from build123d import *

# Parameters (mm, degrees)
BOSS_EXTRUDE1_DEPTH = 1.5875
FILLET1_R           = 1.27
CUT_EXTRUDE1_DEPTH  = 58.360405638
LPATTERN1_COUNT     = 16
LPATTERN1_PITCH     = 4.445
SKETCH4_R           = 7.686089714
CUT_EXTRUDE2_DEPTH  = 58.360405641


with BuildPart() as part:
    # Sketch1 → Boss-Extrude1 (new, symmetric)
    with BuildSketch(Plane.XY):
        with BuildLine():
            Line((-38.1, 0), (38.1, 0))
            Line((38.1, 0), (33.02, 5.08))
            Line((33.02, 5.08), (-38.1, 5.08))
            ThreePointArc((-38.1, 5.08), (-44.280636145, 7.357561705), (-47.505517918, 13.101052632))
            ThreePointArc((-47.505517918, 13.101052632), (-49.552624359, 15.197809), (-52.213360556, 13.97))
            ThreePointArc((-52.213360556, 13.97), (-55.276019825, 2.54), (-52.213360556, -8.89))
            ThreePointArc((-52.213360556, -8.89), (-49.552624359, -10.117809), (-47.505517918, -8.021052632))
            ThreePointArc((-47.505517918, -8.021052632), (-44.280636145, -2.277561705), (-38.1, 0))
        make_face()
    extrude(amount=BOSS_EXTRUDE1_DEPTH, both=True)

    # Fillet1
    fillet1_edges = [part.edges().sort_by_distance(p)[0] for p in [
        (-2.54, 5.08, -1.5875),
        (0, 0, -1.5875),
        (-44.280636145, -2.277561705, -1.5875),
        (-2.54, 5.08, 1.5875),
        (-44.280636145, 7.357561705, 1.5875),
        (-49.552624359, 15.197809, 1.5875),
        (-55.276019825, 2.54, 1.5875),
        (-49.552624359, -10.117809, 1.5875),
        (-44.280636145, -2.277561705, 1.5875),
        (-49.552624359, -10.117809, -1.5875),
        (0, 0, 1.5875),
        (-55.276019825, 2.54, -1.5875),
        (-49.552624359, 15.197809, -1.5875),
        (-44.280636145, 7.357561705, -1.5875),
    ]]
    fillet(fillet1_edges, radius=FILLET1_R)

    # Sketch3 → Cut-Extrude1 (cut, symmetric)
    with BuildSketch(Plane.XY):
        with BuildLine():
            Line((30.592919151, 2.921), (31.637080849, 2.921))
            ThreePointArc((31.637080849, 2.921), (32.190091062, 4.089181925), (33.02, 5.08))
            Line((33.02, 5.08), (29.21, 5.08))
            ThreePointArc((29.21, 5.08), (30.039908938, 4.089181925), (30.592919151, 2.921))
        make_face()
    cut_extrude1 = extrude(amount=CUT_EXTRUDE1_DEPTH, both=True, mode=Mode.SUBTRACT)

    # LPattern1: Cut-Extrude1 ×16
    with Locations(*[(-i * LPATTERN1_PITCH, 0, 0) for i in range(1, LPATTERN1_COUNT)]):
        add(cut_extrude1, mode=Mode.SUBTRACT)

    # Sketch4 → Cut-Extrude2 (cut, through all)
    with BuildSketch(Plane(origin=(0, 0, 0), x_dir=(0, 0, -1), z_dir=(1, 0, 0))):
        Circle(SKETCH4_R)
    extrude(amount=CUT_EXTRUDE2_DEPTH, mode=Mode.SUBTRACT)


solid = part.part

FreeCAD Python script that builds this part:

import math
import FreeCAD as App
import Part
import Sketcher
Q = App.Units.Quantity


def edges_at(feature, points):
    """Names of the edges that pass closest to the given points."""
    edges = feature.Shape.Edges
    near = lambda p: min(range(len(edges)), key=lambda i: edges[i].distToShape(Part.Vertex(*p))[0])
    return sorted({f"Edge{near(p) + 1}" for p in points})

doc = App.newDocument("Part")
body = doc.addObject("PartDesign::Body", "Body")

# Sketch on XY plane
sketch1 = body.newObject("Sketcher::SketchObject", "Sketch")
sketch1.AttachmentSupport = (doc.getObject("XY_Plane"), [""])
sketch1.MapMode = "FlatFace"
sketch1.addGeometry(Part.LineSegment(App.Vector(-38.1, 0, 0), App.Vector(38.1, 0, 0)), False)
sketch1.addGeometry(Part.LineSegment(App.Vector(38.1, 0, 0), App.Vector(33, 5.1, 0)), False)
sketch1.addGeometry(Part.LineSegment(App.Vector(33, 5.1, 0), App.Vector(-38.1, 5.1, 0)), False)
sketch1.addGeometry(Part.ArcOfCircle(Part.Circle(App.Vector(-38.1, 14.6, 0), App.Vector(0, 0, 1), 9.5), math.radians(-171), math.radians(-90)), False)
sketch1.addGeometry(Part.ArcOfCircle(Part.Circle(App.Vector(-50, 12.7, 0), App.Vector(0, 0, 1), 2.5), math.radians(9), math.radians(150)), False)
sketch1.addGeometry(Part.ArcOfCircle(Part.Circle(App.Vector(-32.4, 2.5, 0), App.Vector(0, 0, 1), 22.9), math.radians(150), math.radians(210)), False)
sketch1.addGeometry(Part.ArcOfCircle(Part.Circle(App.Vector(-50, -7.6, 0), App.Vector(0, 0, 1), 2.5), math.radians(-150), math.radians(-9)), False)
sketch1.addGeometry(Part.ArcOfCircle(Part.Circle(App.Vector(-38.1, -9.5, 0), App.Vector(0, 0, 1), 9.5), math.radians(90), math.radians(171)), False)
sketch1.addConstraint(Sketcher.Constraint("Coincident", 0, 2, 1, 1))
sketch1.addConstraint(Sketcher.Constraint("Coincident", 1, 2, 2, 1))
sketch1.addConstraint(Sketcher.Constraint("Tangent", 2, 2, 3, 2))
sketch1.addConstraint(Sketcher.Constraint("Tangent", 3, 1, 4, 1))
sketch1.addConstraint(Sketcher.Constraint("Tangent", 4, 2, 5, 1))
sketch1.addConstraint(Sketcher.Constraint("Tangent", 5, 2, 6, 1))
sketch1.addConstraint(Sketcher.Constraint("Tangent", 6, 2, 7, 2))
sketch1.addConstraint(Sketcher.Constraint("Tangent", 7, 1, 0, 1))
sketch1.addConstraint(Sketcher.Constraint("Horizontal", 0))
sketch1.addConstraint(Sketcher.Constraint("Horizontal", 2))
sketch1.addConstraint(Sketcher.Constraint("Equal", 4, 6))
sketch1.addConstraint(Sketcher.Constraint("Equal", 3, 7))
sketch1.addConstraint(Sketcher.Constraint("Symmetric", 0, 2, 7, 1, -1, 1))
sketch1.addConstraint(Sketcher.Constraint("Vertical", 4, 3, 6, 3))
sketch1.addConstraint(Sketcher.Constraint("Vertical", 3, 3, 7, 3))
sketch1.addConstraint(Sketcher.Constraint("Radius", 4, Q("0.1 in")))
sketch1.addConstraint(Sketcher.Constraint("Radius", 5, Q("0.9 in")))
sketch1.addConstraint(Sketcher.Constraint("DistanceX", 0, 1, 0, 2, Q("3 in")))
sketch1.addConstraint(Sketcher.Constraint("DistanceX", 2, 2, 2, 1, Q("2.8 in")))
sketch1.addConstraint(Sketcher.Constraint("Angle", 1, Q("135 deg")))
sketch1.addConstraint(Sketcher.Constraint("Radius", 3, Q("0.375 in")))
sketch1.addConstraint(Sketcher.Constraint("DistanceY", -1, 1, 4, 3, Q("0.5 in")))
pad1 = body.newObject("PartDesign::Pad", "Pad")
pad1.Profile = sketch1
pad1.Length = Q("0.125 in")
pad1.Midplane = True
doc.recompute()

fillet = body.newObject("PartDesign::Fillet", "Fillet")
fillet.Base = (pad1, edges_at(pad1, [
    (-2.54, 5.08, -1.587),
    (0, 0, -1.587),
    (-44.281, -2.278, -1.587),
    (-2.54, 5.08, 1.587),
    (-44.281, 7.358, 1.587),
    (-49.553, 15.198, 1.587),
    (-55.276, 2.54, 1.587),
    (-49.553, -10.118, 1.587),
    (-44.281, -2.278, 1.587),
    (-49.553, -10.118, -1.587),
    (0, 0, 1.587),
    (-55.276, 2.54, -1.587),
    (-49.553, 15.198, -1.587),
    (-44.281, 7.358, -1.587),
]))
fillet.Radius = Q("0.05 in")

# Sketch on XY plane
sketch2 = body.newObject("Sketcher::SketchObject", "Sketch001")
sketch2.AttachmentSupport = (doc.getObject("XY_Plane"), [""])
sketch2.MapMode = "FlatFace"
sketch2.addGeometry(Part.LineSegment(App.Vector(30.6, 2.9, 0), App.Vector(31.6, 2.9, 0)), False)
sketch2.addGeometry(Part.ArcOfCircle(Part.Circle(App.Vector(36.5, 1.3, 0), App.Vector(0, 0, 1), 5.1), math.radians(133), math.radians(162)), False)
sketch2.addGeometry(Part.LineSegment(App.Vector(33, 5.1, 0), App.Vector(29.2, 5.1, 0)), False)
sketch2.addGeometry(Part.ArcOfCircle(Part.Circle(App.Vector(25.8, 1.3, 0), App.Vector(0, 0, 1), 5.1), math.radians(18), math.radians(47)), False)
sketch2.addConstraint(Sketcher.Constraint("Coincident", 0, 2, 1, 2))
sketch2.addConstraint(Sketcher.Constraint("Coincident", 1, 1, 2, 1))
sketch2.addConstraint(Sketcher.Constraint("Coincident", 2, 2, 3, 2))
sketch2.addConstraint(Sketcher.Constraint("Coincident", 3, 1, 0, 1))
sketch2.addConstraint(Sketcher.Constraint("Horizontal", 0))
sketch2.addConstraint(Sketcher.Constraint("Horizontal", 2))
sketch2.addConstraint(Sketcher.Constraint("Equal", 1, 3))
sketch2.addConstraint(Sketcher.Constraint("Horizontal", 1, 3, 3, 3))
sketch2.addConstraint(Sketcher.Constraint("Radius", 1, Q("0.2 in")))
sketch2.addConstraint(Sketcher.Constraint("DistanceX", 2, 2, 2, 1, Q("0.15 in")))
sketch2.addConstraint(Sketcher.Constraint("DistanceX", -1, 1, 1, 1, Q("1.3 in")))
sketch2.addConstraint(Sketcher.Constraint("DistanceY", -1, 1, 1, 1, Q("0.2 in")))
sketch2.addConstraint(Sketcher.Constraint("DistanceY", -1, 1, 0, 2, Q("0.115 in")))
sketch2.addConstraint(Sketcher.Constraint("DistanceX", 0, 1, 0, 2, Q("1.044162 mm")))
pocket1 = body.newObject("PartDesign::Pocket", "Pocket")
pocket1.Profile = sketch2
pocket1.Length = 116.720811
pocket1.Midplane = True
doc.recompute()

linearpattern = body.newObject("PartDesign::LinearPattern", "LinearPattern")
linearpattern.Originals = [pocket1]
linearpattern.Direction = (doc.getObject("X_Axis"), [""])
linearpattern.Mode = "offset"
linearpattern.Offset = Q("0.175 in")
linearpattern.Occurrences = 16
linearpattern.Reversed = True
body.Tip = linearpattern

# Sketch on YZ plane
sketch3 = body.newObject("Sketcher::SketchObject", "Sketch002")
sketch3.AttachmentSupport = (doc.getObject("YZ_Plane"), [""])
sketch3.MapMode = "FlatFace"
sketch3.addGeometry(Part.Circle(App.Vector(0, 0, 0), App.Vector(0, 0, 1), 8), False)
sketch3.addConstraint(Sketcher.Constraint("Coincident", 0, 3, -1, 1))
sketch3.addConstraint(Sketcher.Constraint("Diameter", 0, Q("15.372179 mm")))
pocket2 = body.newObject("PartDesign::Pocket", "Pocket001")
pocket2.Profile = sketch3
pocket2.Type = "ThroughAll"
pocket2.Reversed = True

doc.recompute()
